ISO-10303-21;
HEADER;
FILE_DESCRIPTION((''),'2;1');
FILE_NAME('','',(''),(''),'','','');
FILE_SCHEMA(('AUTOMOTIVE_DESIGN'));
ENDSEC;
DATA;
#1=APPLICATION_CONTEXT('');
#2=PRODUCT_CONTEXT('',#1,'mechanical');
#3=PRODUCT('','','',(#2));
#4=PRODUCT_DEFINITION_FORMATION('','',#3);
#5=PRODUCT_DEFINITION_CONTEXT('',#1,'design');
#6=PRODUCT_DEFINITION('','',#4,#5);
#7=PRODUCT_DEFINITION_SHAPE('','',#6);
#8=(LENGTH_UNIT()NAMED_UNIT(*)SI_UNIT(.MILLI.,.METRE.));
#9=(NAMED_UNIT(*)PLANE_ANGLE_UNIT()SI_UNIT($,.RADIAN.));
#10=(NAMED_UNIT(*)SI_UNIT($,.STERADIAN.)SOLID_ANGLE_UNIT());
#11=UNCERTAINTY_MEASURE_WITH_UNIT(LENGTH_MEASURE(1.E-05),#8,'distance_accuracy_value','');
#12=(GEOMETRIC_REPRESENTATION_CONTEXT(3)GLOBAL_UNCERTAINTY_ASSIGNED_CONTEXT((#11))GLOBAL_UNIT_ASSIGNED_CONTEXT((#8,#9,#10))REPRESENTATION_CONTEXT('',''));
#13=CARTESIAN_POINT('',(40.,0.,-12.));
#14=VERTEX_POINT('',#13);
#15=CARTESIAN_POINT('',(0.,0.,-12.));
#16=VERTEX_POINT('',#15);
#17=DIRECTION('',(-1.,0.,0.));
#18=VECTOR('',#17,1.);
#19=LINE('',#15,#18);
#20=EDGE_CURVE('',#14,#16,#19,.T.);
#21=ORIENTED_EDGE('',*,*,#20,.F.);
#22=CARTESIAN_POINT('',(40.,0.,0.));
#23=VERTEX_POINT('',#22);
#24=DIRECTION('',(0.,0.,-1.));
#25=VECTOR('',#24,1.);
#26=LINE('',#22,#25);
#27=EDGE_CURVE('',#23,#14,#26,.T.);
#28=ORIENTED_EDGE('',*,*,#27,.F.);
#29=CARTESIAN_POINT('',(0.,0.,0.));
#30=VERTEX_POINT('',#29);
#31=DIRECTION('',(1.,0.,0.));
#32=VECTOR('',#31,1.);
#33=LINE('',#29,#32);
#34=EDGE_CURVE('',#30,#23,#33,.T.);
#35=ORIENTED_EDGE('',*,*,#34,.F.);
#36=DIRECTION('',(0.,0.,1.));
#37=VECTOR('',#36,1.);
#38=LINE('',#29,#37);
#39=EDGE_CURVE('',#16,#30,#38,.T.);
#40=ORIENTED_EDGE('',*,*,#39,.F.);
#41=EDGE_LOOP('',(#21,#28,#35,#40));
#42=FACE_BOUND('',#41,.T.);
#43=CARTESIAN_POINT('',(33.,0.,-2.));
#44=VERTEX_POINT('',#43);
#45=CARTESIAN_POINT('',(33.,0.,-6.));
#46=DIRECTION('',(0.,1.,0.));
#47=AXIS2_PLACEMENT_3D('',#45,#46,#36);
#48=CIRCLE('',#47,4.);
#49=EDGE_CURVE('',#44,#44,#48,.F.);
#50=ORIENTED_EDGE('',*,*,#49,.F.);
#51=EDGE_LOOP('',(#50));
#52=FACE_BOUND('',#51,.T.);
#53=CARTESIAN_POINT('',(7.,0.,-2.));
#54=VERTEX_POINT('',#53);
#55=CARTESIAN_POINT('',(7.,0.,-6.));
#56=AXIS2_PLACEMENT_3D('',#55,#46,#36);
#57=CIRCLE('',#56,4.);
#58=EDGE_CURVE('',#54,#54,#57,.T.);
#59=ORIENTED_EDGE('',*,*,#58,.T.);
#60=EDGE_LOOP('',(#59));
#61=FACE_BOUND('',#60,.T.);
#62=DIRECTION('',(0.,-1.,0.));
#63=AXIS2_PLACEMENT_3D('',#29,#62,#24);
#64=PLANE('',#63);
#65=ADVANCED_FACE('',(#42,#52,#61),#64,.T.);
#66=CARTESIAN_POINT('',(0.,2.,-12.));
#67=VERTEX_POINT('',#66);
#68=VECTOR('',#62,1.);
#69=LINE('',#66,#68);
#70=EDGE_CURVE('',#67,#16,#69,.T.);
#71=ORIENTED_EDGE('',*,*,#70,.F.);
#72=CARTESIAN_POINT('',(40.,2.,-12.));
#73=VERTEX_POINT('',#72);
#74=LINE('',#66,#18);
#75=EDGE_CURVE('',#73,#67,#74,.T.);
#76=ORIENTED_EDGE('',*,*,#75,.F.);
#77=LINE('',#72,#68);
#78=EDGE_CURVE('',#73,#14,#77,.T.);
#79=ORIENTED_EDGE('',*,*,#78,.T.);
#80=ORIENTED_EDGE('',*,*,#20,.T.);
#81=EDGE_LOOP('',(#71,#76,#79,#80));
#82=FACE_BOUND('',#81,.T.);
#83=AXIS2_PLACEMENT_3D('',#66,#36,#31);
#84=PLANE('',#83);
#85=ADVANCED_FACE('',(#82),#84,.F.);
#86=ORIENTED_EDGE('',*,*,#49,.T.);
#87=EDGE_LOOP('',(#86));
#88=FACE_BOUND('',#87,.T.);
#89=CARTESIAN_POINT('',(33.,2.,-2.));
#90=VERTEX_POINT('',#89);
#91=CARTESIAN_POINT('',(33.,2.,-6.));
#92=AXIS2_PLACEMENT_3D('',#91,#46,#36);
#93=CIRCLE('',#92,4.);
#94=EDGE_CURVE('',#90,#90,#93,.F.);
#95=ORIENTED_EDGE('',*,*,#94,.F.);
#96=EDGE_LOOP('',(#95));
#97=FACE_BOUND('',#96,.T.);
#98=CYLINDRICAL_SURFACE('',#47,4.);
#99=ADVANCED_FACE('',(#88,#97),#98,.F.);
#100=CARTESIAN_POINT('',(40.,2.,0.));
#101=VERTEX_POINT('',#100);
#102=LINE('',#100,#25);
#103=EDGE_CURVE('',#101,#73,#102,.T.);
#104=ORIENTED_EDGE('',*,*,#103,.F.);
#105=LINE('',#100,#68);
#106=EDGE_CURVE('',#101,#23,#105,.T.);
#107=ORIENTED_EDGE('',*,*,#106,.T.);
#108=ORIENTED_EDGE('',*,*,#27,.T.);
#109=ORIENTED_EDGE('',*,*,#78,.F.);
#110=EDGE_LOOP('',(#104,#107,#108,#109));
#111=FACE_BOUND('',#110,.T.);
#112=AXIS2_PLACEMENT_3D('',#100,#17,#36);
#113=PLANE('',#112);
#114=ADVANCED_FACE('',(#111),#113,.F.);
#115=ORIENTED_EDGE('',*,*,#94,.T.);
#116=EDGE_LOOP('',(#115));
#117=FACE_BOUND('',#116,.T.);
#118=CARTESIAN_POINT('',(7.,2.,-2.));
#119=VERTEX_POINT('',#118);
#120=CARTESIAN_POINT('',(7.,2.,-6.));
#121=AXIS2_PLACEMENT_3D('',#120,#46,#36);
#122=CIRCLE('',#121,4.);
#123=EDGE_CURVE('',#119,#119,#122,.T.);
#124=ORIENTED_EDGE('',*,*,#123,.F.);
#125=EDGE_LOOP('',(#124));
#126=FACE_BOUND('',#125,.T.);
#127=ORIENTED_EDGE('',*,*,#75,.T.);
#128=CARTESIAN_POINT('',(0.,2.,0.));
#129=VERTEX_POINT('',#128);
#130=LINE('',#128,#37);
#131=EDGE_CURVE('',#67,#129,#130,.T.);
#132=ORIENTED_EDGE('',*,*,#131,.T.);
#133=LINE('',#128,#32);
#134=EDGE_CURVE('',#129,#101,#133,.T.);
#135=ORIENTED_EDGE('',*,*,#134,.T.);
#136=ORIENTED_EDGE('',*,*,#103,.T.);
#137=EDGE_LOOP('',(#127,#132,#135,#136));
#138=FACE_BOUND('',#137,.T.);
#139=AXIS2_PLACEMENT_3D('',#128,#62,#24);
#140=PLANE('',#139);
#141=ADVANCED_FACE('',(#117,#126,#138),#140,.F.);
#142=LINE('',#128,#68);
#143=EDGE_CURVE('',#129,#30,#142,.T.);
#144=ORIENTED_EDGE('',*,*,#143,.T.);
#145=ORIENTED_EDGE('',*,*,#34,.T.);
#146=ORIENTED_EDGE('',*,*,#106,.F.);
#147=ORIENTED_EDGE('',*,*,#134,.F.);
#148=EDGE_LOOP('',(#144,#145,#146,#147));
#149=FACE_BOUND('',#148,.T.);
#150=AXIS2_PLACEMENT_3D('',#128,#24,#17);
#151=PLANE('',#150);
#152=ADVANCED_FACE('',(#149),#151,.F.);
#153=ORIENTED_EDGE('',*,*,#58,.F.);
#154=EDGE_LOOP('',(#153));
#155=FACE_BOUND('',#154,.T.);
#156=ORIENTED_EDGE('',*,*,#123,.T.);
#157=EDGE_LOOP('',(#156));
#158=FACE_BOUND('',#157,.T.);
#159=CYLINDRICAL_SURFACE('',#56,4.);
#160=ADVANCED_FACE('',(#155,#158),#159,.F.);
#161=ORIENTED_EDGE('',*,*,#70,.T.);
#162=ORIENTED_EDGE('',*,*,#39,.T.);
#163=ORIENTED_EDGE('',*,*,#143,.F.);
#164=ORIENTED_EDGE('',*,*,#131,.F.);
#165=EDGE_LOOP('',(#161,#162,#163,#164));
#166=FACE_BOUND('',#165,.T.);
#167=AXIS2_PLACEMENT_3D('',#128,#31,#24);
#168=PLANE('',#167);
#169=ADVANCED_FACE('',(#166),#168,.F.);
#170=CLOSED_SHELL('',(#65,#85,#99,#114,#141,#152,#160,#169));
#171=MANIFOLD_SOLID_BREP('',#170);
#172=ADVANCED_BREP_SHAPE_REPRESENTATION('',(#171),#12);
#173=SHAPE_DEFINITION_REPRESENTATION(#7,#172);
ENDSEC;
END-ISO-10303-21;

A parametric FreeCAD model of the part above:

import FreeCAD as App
import Part
import Sketcher

V = App.Vector
Q = App.Units.Quantity

doc = App.newDocument("Part")
params = doc.addObject("Spreadsheet::Sheet", "Params")
for row, (alias, value) in enumerate([
    ("sketch1_width", "40 mm"),
    ("sketch1_height", "12 mm"),
    ("pad1_length", "2 mm"),
    ("sketch2_diameter", "8 mm"),
], start=1):
    params.set(f"A{row}", alias)
    params.set(f"B{row}", "=" + value)
    params.setAlias(f"B{row}", alias)

body = doc.addObject("PartDesign::Body", "Body")

# Sketch on XZ plane
sketch1 = body.newObject("Sketcher::SketchObject", "Sketch")
sketch1.AttachmentSupport = (doc.getObject("XZ_Plane"), [""])
sketch1.MapMode = "FlatFace"
sketch1.addGeometry([
    Part.LineSegment(V(0, -12, 0), V(0, 0, 0)),
    Part.LineSegment(V(0, 0, 0), V(40, 0, 0)),
    Part.LineSegment(V(40, 0, 0), V(40, -12, 0)),
    Part.LineSegment(V(40, -12, 0), V(0, -12, 0)),
], False)
sketch1.addConstraint([
    Sketcher.Constraint("Coincident", 0, 2, 1, 1),
    Sketcher.Constraint("Coincident", 1, 2, 2, 1),
    Sketcher.Constraint("Coincident", 2, 2, 3, 1),
    Sketcher.Constraint("Coincident", 3, 2, 0, 1),
    Sketcher.Constraint("Vertical", 0),
    Sketcher.Constraint("Horizontal", 1),
    Sketcher.Constraint("Vertical", 2),
    Sketcher.Constraint("Horizontal", 3),
    Sketcher.Constraint("Coincident", 0, 2, -1, 1),
    Sketcher.Constraint("DistanceX", 1, 1, 1, 2, Q("40 mm")),
    Sketcher.Constraint("DistanceY", 0, 1, 0, 2, Q("12 mm")),
])
sketch1.setExpression("Constraints[9]", "Params.sketch1_width")
sketch1.setExpression("Constraints[10]", "Params.sketch1_height")
pad1 = body.newObject("PartDesign::Pad", "Pad")
pad1.Profile = sketch1
pad1.setExpression("Length", "Params.pad1_length")
pad1.Reversed = True

# Sketch on XZ plane
sketch2 = body.newObject("Sketcher::SketchObject", "Sketch001")
sketch2.AttachmentSupport = (doc.getObject("XZ_Plane"), [""])
sketch2.MapMode = "FlatFace"
sketch2.AttachmentOffset = App.Placement(V(0, 0, -2), App.Rotation())
sketch2.addGeometry([
    Part.Circle(V(7, -6, 0), V(0, 0, 1), 4),
    Part.Circle(V(33, -6, 0), V(0, 0, 1), 4),
], False)
sketch2.addConstraint([
    Sketcher.Constraint("Equal", 0, 1),
    Sketcher.Constraint("Horizontal", 0, 3, 1, 3),
    Sketcher.Constraint("Diameter", 0, Q("8 mm")),
    Sketcher.Constraint("DistanceX", -1, 1, 0, 3, Q("7 mm")),
    Sketcher.Constraint("DistanceY", 0, 3, -1, 1, Q("6 mm")),
    Sketcher.Constraint("DistanceX", -1, 1, 1, 3, Q("33 mm")),
])
sketch2.setExpression("Constraints[2]", "Params.sketch2_diameter")
pocket1 = body.newObject("PartDesign::Pocket", "Pocket")
pocket1.Profile = sketch2
pocket1.Type = "ThroughAll"
pocket1.Reversed = True

doc.recompute()
